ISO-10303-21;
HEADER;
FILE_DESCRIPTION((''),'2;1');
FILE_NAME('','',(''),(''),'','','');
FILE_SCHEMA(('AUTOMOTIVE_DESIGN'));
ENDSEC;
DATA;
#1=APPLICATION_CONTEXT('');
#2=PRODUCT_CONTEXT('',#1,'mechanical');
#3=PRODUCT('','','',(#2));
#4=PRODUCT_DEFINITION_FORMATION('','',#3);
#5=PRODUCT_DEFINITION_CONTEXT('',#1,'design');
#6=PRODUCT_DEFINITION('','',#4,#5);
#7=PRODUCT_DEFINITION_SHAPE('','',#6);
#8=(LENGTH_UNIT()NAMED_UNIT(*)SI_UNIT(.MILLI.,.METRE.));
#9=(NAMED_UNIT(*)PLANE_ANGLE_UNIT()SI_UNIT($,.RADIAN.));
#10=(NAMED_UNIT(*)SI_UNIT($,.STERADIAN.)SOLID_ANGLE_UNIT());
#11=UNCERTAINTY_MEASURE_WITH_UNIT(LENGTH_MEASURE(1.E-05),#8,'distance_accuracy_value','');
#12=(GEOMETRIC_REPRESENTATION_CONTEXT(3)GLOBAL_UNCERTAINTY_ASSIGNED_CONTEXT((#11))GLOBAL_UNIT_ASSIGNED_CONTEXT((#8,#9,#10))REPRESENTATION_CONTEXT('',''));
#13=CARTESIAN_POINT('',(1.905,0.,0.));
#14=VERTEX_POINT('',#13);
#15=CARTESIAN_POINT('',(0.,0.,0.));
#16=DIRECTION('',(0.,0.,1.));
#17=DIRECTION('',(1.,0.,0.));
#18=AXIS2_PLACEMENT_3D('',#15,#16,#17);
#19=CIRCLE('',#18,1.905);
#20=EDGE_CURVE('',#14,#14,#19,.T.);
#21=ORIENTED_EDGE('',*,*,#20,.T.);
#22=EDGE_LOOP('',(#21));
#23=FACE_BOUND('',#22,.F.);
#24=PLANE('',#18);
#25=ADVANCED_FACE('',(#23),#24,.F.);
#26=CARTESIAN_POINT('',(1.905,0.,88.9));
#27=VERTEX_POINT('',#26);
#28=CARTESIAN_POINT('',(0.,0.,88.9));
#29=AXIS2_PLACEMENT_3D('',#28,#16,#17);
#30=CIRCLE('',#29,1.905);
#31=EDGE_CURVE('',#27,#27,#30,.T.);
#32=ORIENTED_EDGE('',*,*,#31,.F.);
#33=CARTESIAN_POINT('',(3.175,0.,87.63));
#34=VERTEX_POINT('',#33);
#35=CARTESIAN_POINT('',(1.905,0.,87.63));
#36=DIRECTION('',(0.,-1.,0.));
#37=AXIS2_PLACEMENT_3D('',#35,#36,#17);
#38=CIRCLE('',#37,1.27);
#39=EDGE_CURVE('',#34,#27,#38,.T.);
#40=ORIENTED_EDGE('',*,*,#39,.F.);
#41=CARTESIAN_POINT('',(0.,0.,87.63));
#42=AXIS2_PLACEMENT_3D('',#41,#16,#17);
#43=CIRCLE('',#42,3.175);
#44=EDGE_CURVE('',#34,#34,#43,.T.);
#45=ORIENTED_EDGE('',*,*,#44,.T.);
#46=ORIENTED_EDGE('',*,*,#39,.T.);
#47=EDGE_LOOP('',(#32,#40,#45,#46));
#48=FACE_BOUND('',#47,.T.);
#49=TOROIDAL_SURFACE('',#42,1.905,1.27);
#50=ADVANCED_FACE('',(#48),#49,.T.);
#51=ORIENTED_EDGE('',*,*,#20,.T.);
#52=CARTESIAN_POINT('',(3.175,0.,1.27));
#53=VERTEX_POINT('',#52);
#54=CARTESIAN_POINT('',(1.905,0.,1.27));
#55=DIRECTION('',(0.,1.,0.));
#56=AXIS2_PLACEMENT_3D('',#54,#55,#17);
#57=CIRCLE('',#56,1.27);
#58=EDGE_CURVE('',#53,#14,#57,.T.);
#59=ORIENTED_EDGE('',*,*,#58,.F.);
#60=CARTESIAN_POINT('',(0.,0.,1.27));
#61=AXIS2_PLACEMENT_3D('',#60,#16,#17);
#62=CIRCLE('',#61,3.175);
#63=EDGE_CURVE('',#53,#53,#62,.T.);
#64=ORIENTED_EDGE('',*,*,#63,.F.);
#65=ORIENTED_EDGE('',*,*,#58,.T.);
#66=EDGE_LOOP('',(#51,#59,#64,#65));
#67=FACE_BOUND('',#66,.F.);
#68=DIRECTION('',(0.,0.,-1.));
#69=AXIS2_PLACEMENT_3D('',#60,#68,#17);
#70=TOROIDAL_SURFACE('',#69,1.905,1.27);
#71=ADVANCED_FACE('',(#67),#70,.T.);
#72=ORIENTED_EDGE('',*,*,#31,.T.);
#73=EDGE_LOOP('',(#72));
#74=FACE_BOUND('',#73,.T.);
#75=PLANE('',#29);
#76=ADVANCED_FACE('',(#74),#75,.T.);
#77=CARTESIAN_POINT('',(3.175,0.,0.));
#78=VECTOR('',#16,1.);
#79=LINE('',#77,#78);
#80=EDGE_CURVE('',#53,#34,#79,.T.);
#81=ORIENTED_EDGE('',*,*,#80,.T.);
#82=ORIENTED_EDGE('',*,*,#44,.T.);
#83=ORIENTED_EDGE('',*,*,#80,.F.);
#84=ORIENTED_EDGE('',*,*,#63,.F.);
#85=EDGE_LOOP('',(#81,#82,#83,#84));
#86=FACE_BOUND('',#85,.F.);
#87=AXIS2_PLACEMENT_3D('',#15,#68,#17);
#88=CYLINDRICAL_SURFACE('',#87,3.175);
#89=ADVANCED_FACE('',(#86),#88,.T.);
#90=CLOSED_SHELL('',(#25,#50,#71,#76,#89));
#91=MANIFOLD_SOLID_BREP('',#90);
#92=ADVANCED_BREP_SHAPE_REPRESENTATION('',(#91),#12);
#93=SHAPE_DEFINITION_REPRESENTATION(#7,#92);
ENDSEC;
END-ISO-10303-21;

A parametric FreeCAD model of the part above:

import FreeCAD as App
import Part
import Sketcher
from FreeCAD import Vector
Q = App.Units.Quantity


def edges_at(feature, points):
    """Names of the edges that pass closest to the given points."""
    edges = feature.Shape.Edges
    near = lambda p: min(range(len(edges)), key=lambda i: edges[i].distToShape(Part.Vertex(*p))[0])
    return sorted({f"Edge{near(p) + 1}" for p in points})

doc = App.newDocument("Part")
body = doc.addObject("PartDesign::Body", "Body")

# Sketch on XY plane
sketch1 = body.newObject("Sketcher::SketchObject", "Sketch")
sketch1.AttachmentSupport = (doc.getObject("XY_Plane"), [""])
sketch1.MapMode = "FlatFace"
sketch1.addGeometry(Part.Circle(Vector(0, 0, 0), Vector(0, 0, 1), 3.2), False)
sketch1.addConstraint(Sketcher.Constraint("Coincident", 0, 3, -1, 1))
sketch1.addConstraint(Sketcher.Constraint("Diameter", 0, Q("0.25 in")))
pad1 = body.newObject("PartDesign::Pad", "Pad")
pad1.Profile = sketch1
pad1.Length = Q("3.5 in")
doc.recompute()

fillet = body.newObject("PartDesign::Fillet", "Fillet")
fillet.Base = (pad1, edges_at(pad1, [(-3.175, 0, 88.9), (-3.175, 0, 0)]))
fillet.Radius = Q("0.05 in")

doc.recompute()
